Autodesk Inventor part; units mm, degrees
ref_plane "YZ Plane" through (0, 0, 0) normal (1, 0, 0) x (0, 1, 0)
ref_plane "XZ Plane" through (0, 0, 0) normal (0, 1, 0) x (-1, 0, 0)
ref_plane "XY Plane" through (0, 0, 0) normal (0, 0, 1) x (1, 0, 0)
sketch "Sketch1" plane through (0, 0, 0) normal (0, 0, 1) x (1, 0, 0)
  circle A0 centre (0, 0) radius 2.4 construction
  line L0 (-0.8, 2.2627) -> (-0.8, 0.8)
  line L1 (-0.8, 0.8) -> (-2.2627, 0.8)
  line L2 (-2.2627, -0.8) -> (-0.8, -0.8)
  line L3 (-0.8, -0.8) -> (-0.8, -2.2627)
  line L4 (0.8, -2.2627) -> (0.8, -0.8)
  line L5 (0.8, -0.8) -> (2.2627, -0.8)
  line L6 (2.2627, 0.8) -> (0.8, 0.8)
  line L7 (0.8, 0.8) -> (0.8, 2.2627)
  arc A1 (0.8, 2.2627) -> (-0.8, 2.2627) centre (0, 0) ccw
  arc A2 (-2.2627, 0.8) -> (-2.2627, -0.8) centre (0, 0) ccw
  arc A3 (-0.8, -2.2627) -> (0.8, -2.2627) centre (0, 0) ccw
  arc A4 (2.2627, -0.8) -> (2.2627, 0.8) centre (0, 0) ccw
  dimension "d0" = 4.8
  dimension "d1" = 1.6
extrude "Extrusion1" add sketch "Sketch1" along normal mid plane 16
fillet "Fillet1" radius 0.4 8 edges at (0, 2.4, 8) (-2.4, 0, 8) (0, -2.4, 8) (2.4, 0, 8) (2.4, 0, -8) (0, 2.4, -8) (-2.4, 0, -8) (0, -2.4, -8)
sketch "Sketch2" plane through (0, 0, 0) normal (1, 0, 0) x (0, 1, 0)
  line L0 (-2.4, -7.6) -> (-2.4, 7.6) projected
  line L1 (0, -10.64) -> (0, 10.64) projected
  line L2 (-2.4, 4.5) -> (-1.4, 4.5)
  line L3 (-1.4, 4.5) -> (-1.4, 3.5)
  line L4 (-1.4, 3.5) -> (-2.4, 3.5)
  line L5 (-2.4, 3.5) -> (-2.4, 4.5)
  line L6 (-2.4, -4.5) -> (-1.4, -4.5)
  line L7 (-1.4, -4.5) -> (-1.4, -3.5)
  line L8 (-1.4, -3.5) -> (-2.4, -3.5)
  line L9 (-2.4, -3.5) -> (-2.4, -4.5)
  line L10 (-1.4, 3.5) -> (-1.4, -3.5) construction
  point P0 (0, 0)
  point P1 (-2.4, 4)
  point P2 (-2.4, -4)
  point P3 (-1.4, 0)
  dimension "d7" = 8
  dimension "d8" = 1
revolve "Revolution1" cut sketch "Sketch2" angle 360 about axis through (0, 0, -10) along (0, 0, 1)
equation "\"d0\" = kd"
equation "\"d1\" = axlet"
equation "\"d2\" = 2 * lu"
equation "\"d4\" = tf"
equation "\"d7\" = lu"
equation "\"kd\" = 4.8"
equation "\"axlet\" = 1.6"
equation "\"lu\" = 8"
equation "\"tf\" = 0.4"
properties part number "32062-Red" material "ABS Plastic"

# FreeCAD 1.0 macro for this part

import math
import FreeCAD as App
import Part
import Sketcher
Q = App.Units.Quantity


def edges_at(feature, points):
    """Names of the edges that pass closest to the given points."""
    edges = feature.Shape.Edges
    near = lambda p: min(range(len(edges)), key=lambda i: edges[i].distToShape(Part.Vertex(*p))[0])
    return sorted({f"Edge{near(p) + 1}" for p in points})

doc = App.newDocument("Part")
body = doc.addObject("PartDesign::Body", "Body")

sketch1 = doc.addObject("Sketcher::SketchObject", "Sketch")
body.addObject(sketch1)
sketch1.AttachmentSupport = (doc.XY_Plane, [""])
sketch1.MapMode = "FlatFace"
sketch1.addGeometry(Part.ArcOfCircle(Part.Circle(App.Vector(0, 0, 0), App.Vector(0, 0, 1), 2.399961), math.radians(70.528448), math.radians(109.471552)), False)
sketch1.addGeometry(Part.LineSegment(App.Vector(-0.8, 2.2627, 0), App.Vector(-0.8, 0.8, 0)), False)
sketch1.addGeometry(Part.LineSegment(App.Vector(-0.8, 0.8, 0), App.Vector(-2.2627, 0.8, 0)), False)
sketch1.addGeometry(Part.ArcOfCircle(Part.Circle(App.Vector(0, 0, 0), App.Vector(0, 0, 1), 2.399961), math.radians(160.528448), math.radians(199.471552)), False)
sketch1.addGeometry(Part.LineSegment(App.Vector(-2.2627, -0.8, 0), App.Vector(-0.8, -0.8, 0)), False)
sketch1.addGeometry(Part.LineSegment(App.Vector(-0.8, -0.8, 0), App.Vector(-0.8, -2.2627, 0)), False)
sketch1.addGeometry(Part.ArcOfCircle(Part.Circle(App.Vector(0, 0, 0), App.Vector(0, 0, 1), 2.399961), math.radians(-109.471552), math.radians(-70.528448)), False)
sketch1.addGeometry(Part.LineSegment(App.Vector(0.8, -2.2627, 0), App.Vector(0.8, -0.8, 0)), False)
sketch1.addGeometry(Part.LineSegment(App.Vector(0.8, -0.8, 0), App.Vector(2.2627, -0.8, 0)), False)
sketch1.addGeometry(Part.ArcOfCircle(Part.Circle(App.Vector(0, 0, 0), App.Vector(0, 0, 1), 2.399961), math.radians(-19.471552), math.radians(19.471552)), False)
sketch1.addGeometry(Part.LineSegment(App.Vector(2.2627, 0.8, 0), App.Vector(0.8, 0.8, 0)), False)
sketch1.addGeometry(Part.LineSegment(App.Vector(0.8, 0.8, 0), App.Vector(0.8, 2.2627, 0)), False)
sketch1.addConstraint(Sketcher.Constraint("Coincident", 0, 2, 1, 1))
sketch1.addConstraint(Sketcher.Constraint("Coincident", 1, 2, 2, 1))
sketch1.addConstraint(Sketcher.Constraint("Coincident", 2, 2, 3, 1))
sketch1.addConstraint(Sketcher.Constraint("Coincident", 3, 2, 4, 1))
sketch1.addConstraint(Sketcher.Constraint("Coincident", 4, 2, 5, 1))
sketch1.addConstraint(Sketcher.Constraint("Coincident", 5, 2, 6, 1))
sketch1.addConstraint(Sketcher.Constraint("Coincident", 6, 2, 7, 1))
sketch1.addConstraint(Sketcher.Constraint("Coincident", 7, 2, 8, 1))
sketch1.addConstraint(Sketcher.Constraint("Coincident", 8, 2, 9, 1))
sketch1.addConstraint(Sketcher.Constraint("Coincident", 9, 2, 10, 1))
sketch1.addConstraint(Sketcher.Constraint("Coincident", 10, 2, 11, 1))
sketch1.addConstraint(Sketcher.Constraint("Coincident", 11, 2, 0, 1))
sketch1.addConstraint(Sketcher.Constraint("Vertical", 1))
sketch1.addConstraint(Sketcher.Constraint("Horizontal", 2))
sketch1.addConstraint(Sketcher.Constraint("Horizontal", 4))
sketch1.addConstraint(Sketcher.Constraint("Vertical", 5))
sketch1.addConstraint(Sketcher.Constraint("Vertical", 7))
sketch1.addConstraint(Sketcher.Constraint("Horizontal", 8))
sketch1.addConstraint(Sketcher.Constraint("Horizontal", 10))
sketch1.addConstraint(Sketcher.Constraint("Vertical", 11))
sketch1.addConstraint(Sketcher.Constraint("Coincident", 0, 3, -1, 1))
sketch1.addConstraint(Sketcher.Constraint("Coincident", 3, 3, -1, 1))
sketch1.addConstraint(Sketcher.Constraint("Coincident", 6, 3, -1, 1))
sketch1.addConstraint(Sketcher.Constraint("Coincident", 9, 3, -1, 1))
sketch1.addConstraint(Sketcher.Constraint("Equal", 0, 3))
sketch1.addConstraint(Sketcher.Constraint("Equal", 3, 6))
sketch1.addConstraint(Sketcher.Constraint("Equal", 6, 9))
sketch1.addConstraint(Sketcher.Constraint("Symmetric", 1, 2, 7, 2, -1, 1))
sketch1.addConstraint(Sketcher.Constraint("Symmetric", 4, 2, 10, 2, -1, 1))
sketch1.addConstraint(Sketcher.Constraint("Symmetric", 4, 2, 7, 2, -2))
sketch1.addConstraint(Sketcher.Constraint("Equal", 10, 1))
sketch1.addConstraint(Sketcher.Constraint("Radius", 0, Q("2.4 mm")))
sketch1.addConstraint(Sketcher.Constraint("DistanceY", 3, 2, 2, 2, Q("1.6 mm")))
pad1 = doc.addObject("PartDesign::Pad", "Pad")
body.addObject(pad1)
pad1.Profile = sketch1
pad1.Length = 16
pad1.Midplane = True
doc.recompute()

fillet = doc.addObject("PartDesign::Fillet", "Fillet")
body.addObject(fillet)
fillet.Base = (pad1, edges_at(pad1, [
    (0, 2.4, 8),
    (-2.4, 0, 8),
    (0, -2.4, 8),
    (2.4, 0, 8),
    (2.4, 0, -8),
    (0, 2.4, -8),
    (-2.4, 0, -8),
    (0, -2.4, -8),
]))
fillet.Radius = 0.4

sketch2 = doc.addObject("Sketcher::SketchObject", "Sketch001")
body.addObject(sketch2)
sketch2.AttachmentSupport = (doc.YZ_Plane, [""])
sketch2.MapMode = "FlatFace"
sketch2.addGeometry(Part.LineSegment(App.Vector(-2.4, 4.5, 0), App.Vector(-2.4, 3.5, 0)), False)
sketch2.addGeometry(Part.LineSegment(App.Vector(-2.4, 3.5, 0), App.Vector(-1.4, 3.5, 0)), False)
sketch2.addGeometry(Part.LineSegment(App.Vector(-1.4, 3.5, 0), App.Vector(-1.4, 4.5, 0)), False)
sketch2.addGeometry(Part.LineSegment(App.Vector(-1.4, 4.5, 0), App.Vector(-2.4, 4.5, 0)), False)
sketch2.addGeometry(Part.LineSegment(App.Vector(-2.4, -3.5, 0), App.Vector(-2.4, -4.5, 0)), False)
sketch2.addGeometry(Part.LineSegment(App.Vector(-2.4, -4.5, 0), App.Vector(-1.4, -4.5, 0)), False)
sketch2.addGeometry(Part.LineSegment(App.Vector(-1.4, -4.5, 0), App.Vector(-1.4, -3.5, 0)), False)
sketch2.addGeometry(Part.LineSegment(App.Vector(-1.4, -3.5, 0), App.Vector(-2.4, -3.5, 0)), False)
sketch2.addConstraint(Sketcher.Constraint("Coincident", 0, 2, 1, 1))
sketch2.addConstraint(Sketcher.Constraint("Coincident", 1, 2, 2, 1))
sketch2.addConstraint(Sketcher.Constraint("Coincident", 2, 2, 3, 1))
sketch2.addConstraint(Sketcher.Constraint("Coincident", 3, 2, 0, 1))
sketch2.addConstraint(Sketcher.Constraint("Coincident", 4, 2, 5, 1))
sketch2.addConstraint(Sketcher.Constraint("Coincident", 5, 2, 6, 1))
sketch2.addConstraint(Sketcher.Constraint("Coincident", 6, 2, 7, 1))
sketch2.addConstraint(Sketcher.Constraint("Coincident", 7, 2, 4, 1))
sketch2.addConstraint(Sketcher.Constraint("Vertical", 0))
sketch2.addConstraint(Sketcher.Constraint("Horizontal", 1))
sketch2.addConstraint(Sketcher.Constraint("Vertical", 2))
sketch2.addConstraint(Sketcher.Constraint("Horizontal", 3))
sketch2.addConstraint(Sketcher.Constraint("Vertical", 4))
sketch2.addConstraint(Sketcher.Constraint("Horizontal", 5))
sketch2.addConstraint(Sketcher.Constraint("Vertical", 6))
sketch2.addConstraint(Sketcher.Constraint("Horizontal", 7))
sketch2.addConstraint(Sketcher.Constraint("Symmetric", 3, 2, 4, 2, -1))
sketch2.addConstraint(Sketcher.Constraint("Symmetric", 1, 2, 6, 2, -1))
sketch2.addConstraint(Sketcher.Constraint("Equal", 7, 0))
sketch2.addConstraint(Sketcher.Constraint("DistanceX", 1, 1, 1, 2, Q("1 mm")))
sketch2.addConstraint(Sketcher.Constraint("DistanceY", 4, 2, 0, 2, Q("8 mm")))
sketch2.addConstraint(Sketcher.Constraint("DistanceX", 0, 2, -1, 1, Q("2.4 mm")))
groove = doc.addObject("PartDesign::Groove", "Groove")
body.addObject(groove)
groove.Profile = sketch2
groove.ReferenceAxis = (sketch2, ["V_Axis"])
groove.Angle = 360

doc.recompute()
